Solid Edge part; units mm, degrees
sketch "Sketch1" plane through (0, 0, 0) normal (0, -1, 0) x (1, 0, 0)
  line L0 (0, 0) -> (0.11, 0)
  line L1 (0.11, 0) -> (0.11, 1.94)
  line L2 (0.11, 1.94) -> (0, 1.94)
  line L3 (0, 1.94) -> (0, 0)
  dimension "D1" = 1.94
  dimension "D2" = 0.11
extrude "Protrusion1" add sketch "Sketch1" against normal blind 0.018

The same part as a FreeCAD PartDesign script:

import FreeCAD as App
import Part
import Sketcher
from FreeCAD import Vector
Q = App.Units.Quantity

doc = App.newDocument("Part")
body = doc.addObject("PartDesign::Body", "Body")

sketch1 = body.newObject("Sketcher::SketchObject", "Sketch")
sketch1.AttachmentSupport = (doc.getObject("XZ_Plane"), [""])
sketch1.MapMode = "FlatFace"
sketch1.addGeometry([
    Part.LineSegment(Vector(0, 1.94, 0), Vector(0, 0, 0)),
    Part.LineSegment(Vector(0, 0, 0), Vector(0.11, 0, 0)),
    Part.LineSegment(Vector(0.11, 0, 0), Vector(0.11, 1.94, 0)),
    Part.LineSegment(Vector(0.11, 1.94, 0), Vector(0, 1.94, 0)),
], False)
sketch1.addConstraint([
    Sketcher.Constraint("Coincident", 0, 2, 1, 1),
    Sketcher.Constraint("Coincident", 1, 2, 2, 1),
    Sketcher.Constraint("Coincident", 2, 2, 3, 1),
    Sketcher.Constraint("Coincident", 3, 2, 0, 1),
    Sketcher.Constraint("Vertical", 0),
    Sketcher.Constraint("Horizontal", 1),
    Sketcher.Constraint("Vertical", 2),
    Sketcher.Constraint("Horizontal", 3),
    Sketcher.Constraint("Coincident", 0, 2, -1, 1),
    Sketcher.Constraint("DistanceX", 1, 1, 1, 2, Q("0.11 mm")),
    Sketcher.Constraint("DistanceY", 0, 2, 0, 1, Q("1.94 mm")),
])
pad1 = body.newObject("PartDesign::Pad", "Pad")
pad1.Profile = sketch1
pad1.Length = 0.018
pad1.Reversed = True

doc.recompute()
